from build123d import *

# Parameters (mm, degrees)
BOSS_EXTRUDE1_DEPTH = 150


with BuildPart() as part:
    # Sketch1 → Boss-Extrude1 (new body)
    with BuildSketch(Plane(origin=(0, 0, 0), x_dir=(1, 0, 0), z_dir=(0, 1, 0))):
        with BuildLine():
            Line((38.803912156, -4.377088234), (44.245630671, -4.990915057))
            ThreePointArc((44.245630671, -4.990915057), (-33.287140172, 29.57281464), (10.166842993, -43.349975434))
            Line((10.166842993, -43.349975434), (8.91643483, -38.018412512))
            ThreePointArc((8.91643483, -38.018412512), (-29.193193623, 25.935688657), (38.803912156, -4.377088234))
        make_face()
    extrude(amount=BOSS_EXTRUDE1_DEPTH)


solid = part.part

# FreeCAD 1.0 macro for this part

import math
import FreeCAD as App
import Part
import Sketcher

doc = App.newDocument("Part")
body = doc.addObject("PartDesign::Body", "Body")

# Sketch on XZ plane
sketch1 = body.newObject("Sketcher::SketchObject", "Sketch")
sketch1.AttachmentSupport = (doc.getObject("XZ_Plane"), [""])
sketch1.MapMode = "FlatFace"
sketch1.addGeometry([
    Part.LineSegment(App.Vector(39, 4, 0), App.Vector(44, 5, 0)),
    Part.ArcOfCircle(Part.Circle(App.Vector(0, 0, 0), App.Vector(0, 0, 1), 45), math.radians(77), math.radians(366)),
    Part.LineSegment(App.Vector(10, 43, 0), App.Vector(9, 38, 0)),
    Part.ArcOfCircle(Part.Circle(App.Vector(0, 0, 0), App.Vector(0, 0, 1), 39), math.radians(77), math.radians(366)),
], False)
sketch1.addConstraint([
    Sketcher.Constraint("Coincident", 0, 2, 1, 2),
    Sketcher.Constraint("Coincident", 1, 1, 2, 1),
    Sketcher.Constraint("Coincident", 2, 2, 3, 1),
    Sketcher.Constraint("Coincident", 3, 2, 0, 1),
    Sketcher.Constraint("Coincident", 1, 3, -1, 1),
    Sketcher.Constraint("Coincident", 3, 3, -1, 1),
    Sketcher.Constraint("Radius", 3, 39.05),
    Sketcher.Constraint("Radius", 1, 44.526229),
    Sketcher.Constraint("DistanceX", -1, 1, 0, 2, 44.245631),
    Sketcher.Constraint("DistanceY", -1, 1, 3, 2, 4.377088),
    Sketcher.Constraint("DistanceY", 0, 2, 1, 1, 38.35906),
    Sketcher.Constraint("DistanceX", 2, 2, 1, 1, 1.250408),
])
pad1 = body.newObject("PartDesign::Pad", "Pad")
pad1.Profile = sketch1
pad1.Length = 150
pad1.Reversed = True

doc.recompute()
